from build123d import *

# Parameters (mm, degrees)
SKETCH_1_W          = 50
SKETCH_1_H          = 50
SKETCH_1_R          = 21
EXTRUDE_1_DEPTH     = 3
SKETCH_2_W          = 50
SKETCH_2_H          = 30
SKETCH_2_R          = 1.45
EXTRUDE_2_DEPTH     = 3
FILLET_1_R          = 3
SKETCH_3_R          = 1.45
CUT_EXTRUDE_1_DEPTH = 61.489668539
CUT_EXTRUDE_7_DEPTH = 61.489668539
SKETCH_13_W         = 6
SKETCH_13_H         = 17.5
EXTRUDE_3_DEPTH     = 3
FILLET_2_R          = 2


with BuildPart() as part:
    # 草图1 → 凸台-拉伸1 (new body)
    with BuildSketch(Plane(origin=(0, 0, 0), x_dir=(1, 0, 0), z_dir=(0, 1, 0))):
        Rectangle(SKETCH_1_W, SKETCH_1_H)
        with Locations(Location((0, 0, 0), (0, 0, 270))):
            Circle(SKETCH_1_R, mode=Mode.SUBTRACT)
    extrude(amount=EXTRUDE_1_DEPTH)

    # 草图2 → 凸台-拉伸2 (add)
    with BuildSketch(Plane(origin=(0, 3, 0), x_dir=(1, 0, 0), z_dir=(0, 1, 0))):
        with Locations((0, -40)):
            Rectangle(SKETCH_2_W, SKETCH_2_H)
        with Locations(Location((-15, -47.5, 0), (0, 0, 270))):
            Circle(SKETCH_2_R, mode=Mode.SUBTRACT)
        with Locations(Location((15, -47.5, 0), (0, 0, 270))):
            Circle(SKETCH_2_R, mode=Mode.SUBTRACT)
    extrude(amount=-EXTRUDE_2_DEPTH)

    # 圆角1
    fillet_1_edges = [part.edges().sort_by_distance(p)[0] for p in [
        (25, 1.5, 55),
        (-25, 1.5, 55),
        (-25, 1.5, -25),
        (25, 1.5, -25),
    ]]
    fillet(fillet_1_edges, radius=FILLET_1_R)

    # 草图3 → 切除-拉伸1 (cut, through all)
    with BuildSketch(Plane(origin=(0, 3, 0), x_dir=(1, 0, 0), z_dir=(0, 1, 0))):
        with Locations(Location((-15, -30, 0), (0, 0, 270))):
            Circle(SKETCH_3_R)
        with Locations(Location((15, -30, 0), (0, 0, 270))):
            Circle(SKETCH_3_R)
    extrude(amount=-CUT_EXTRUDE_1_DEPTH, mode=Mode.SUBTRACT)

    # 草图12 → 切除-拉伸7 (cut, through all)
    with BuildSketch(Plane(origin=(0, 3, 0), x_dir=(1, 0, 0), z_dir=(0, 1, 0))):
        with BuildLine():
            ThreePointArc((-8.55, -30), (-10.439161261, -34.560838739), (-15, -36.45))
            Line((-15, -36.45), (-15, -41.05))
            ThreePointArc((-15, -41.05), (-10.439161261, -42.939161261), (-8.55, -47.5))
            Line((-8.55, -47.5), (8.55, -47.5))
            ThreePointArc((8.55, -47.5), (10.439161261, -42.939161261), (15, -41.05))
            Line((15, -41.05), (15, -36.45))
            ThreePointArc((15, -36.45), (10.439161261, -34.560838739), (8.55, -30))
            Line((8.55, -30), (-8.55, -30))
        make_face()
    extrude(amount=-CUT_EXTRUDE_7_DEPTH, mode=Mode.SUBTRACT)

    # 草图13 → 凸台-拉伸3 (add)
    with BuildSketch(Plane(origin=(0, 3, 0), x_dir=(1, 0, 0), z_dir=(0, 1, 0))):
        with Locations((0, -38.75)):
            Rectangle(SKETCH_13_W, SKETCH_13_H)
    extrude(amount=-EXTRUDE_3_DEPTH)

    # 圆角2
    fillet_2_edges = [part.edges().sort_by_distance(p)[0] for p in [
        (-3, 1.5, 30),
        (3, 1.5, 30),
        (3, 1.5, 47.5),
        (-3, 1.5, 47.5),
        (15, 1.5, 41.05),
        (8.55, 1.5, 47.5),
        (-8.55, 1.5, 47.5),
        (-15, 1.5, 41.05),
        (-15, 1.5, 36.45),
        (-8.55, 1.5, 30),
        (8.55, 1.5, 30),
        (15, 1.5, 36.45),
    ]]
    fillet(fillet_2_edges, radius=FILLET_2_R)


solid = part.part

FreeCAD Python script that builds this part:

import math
import FreeCAD as App
import Part
import Sketcher

V = App.Vector
Q = App.Units.Quantity


def edges_at(feature, points):
    """Names of the edges that pass closest to the given points."""
    edges = feature.Shape.Edges
    near = lambda p: min(range(len(edges)), key=lambda i: edges[i].distToShape(Part.Vertex(*p))[0])
    return sorted({f"Edge{near(p) + 1}" for p in points})

doc = App.newDocument("Part")
body = doc.addObject("PartDesign::Body", "Body")

# Sketch on XZ plane
sketch1 = body.newObject("Sketcher::SketchObject", "Sketch")
sketch1.AttachmentSupport = (doc.getObject("XZ_Plane"), [""])
sketch1.MapMode = "FlatFace"
sketch1.addGeometry(Part.LineSegment(V(-25, -25, 0), V(-25, 25, 0)), False)
sketch1.addGeometry(Part.LineSegment(V(-25, 25, 0), V(25, 25, 0)), False)
sketch1.addGeometry(Part.LineSegment(V(25, 25, 0), V(25, -25, 0)), False)
sketch1.addGeometry(Part.LineSegment(V(25, -25, 0), V(-25, -25, 0)), False)
sketch1.addGeometry(Part.Circle(V(0, 0, 0), V(0, 0, 1), 21), False)
sketch1.addConstraint(Sketcher.Constraint("Coincident", 0, 2, 1, 1))
sketch1.addConstraint(Sketcher.Constraint("Coincident", 1, 2, 2, 1))
sketch1.addConstraint(Sketcher.Constraint("Coincident", 2, 2, 3, 1))
sketch1.addConstraint(Sketcher.Constraint("Coincident", 3, 2, 0, 1))
sketch1.addConstraint(Sketcher.Constraint("Vertical", 0))
sketch1.addConstraint(Sketcher.Constraint("Horizontal", 1))
sketch1.addConstraint(Sketcher.Constraint("Vertical", 2))
sketch1.addConstraint(Sketcher.Constraint("Horizontal", 3))
sketch1.addConstraint(Sketcher.Constraint("Coincident", 4, 3, -1, 1))
sketch1.addConstraint(Sketcher.Constraint("Symmetric", 0, 2, 2, 2, -1, 1))
sketch1.addConstraint(Sketcher.Constraint("Equal", 3, 0))
sketch1.addConstraint(Sketcher.Constraint("Diameter", 4, Q("42 mm")))
sketch1.addConstraint(Sketcher.Constraint("DistanceX", 1, 1, 1, 2, Q("50 mm")))
pad1 = body.newObject("PartDesign::Pad", "Pad")
pad1.Profile = sketch1
pad1.Length = 3
pad1.Reversed = True

# Sketch on XZ plane
sketch2 = body.newObject("Sketcher::SketchObject", "Sketch001")
sketch2.AttachmentSupport = (doc.getObject("XZ_Plane"), [""])
sketch2.MapMode = "FlatFace"
sketch2.AttachmentOffset = App.Placement(V(0, 0, -3), App.Rotation())
sketch2.addGeometry(Part.LineSegment(V(-25, 25, 0), V(-25, 55, 0)), False)
sketch2.addGeometry(Part.LineSegment(V(-25, 55, 0), V(25, 55, 0)), False)
sketch2.addGeometry(Part.LineSegment(V(25, 55, 0), V(25, 25, 0)), False)
sketch2.addGeometry(Part.LineSegment(V(25, 25, 0), V(-25, 25, 0)), False)
sketch2.addGeometry(Part.Circle(V(-15, 47.5, 0), V(0, 0, 1), 1.45), False)
sketch2.addGeometry(Part.Circle(V(15, 47.5, 0), V(0, 0, 1), 1.45), False)
sketch2.addConstraint(Sketcher.Constraint("Coincident", 0, 2, 1, 1))
sketch2.addConstraint(Sketcher.Constraint("Coincident", 1, 2, 2, 1))
sketch2.addConstraint(Sketcher.Constraint("Coincident", 2, 2, 3, 1))
sketch2.addConstraint(Sketcher.Constraint("Coincident", 3, 2, 0, 1))
sketch2.addConstraint(Sketcher.Constraint("Vertical", 0))
sketch2.addConstraint(Sketcher.Constraint("Horizontal", 1))
sketch2.addConstraint(Sketcher.Constraint("Vertical", 2))
sketch2.addConstraint(Sketcher.Constraint("Horizontal", 3))
sketch2.addConstraint(Sketcher.Constraint("Equal", 4, 5))
sketch2.addConstraint(Sketcher.Constraint("Symmetric", 4, 3, 5, 3, -2))
sketch2.addConstraint(Sketcher.Constraint("Diameter", 4, Q("2.9 mm")))
sketch2.addConstraint(Sketcher.Constraint("DistanceX", 1, 1, 1, 2, Q("50 mm")))
sketch2.addConstraint(Sketcher.Constraint("DistanceY", 0, 1, 0, 2, Q("30 mm")))
sketch2.addConstraint(Sketcher.Constraint("DistanceX", 4, 3, -1, 1, Q("15 mm")))
sketch2.addConstraint(Sketcher.Constraint("DistanceX", 0, 2, -1, 1, Q("25 mm")))
sketch2.addConstraint(Sketcher.Constraint("DistanceY", -1, 1, 0, 2, Q("55 mm")))
sketch2.addConstraint(Sketcher.Constraint("DistanceY", -1, 1, 4, 3, Q("47.5 mm")))
pad2 = body.newObject("PartDesign::Pad", "Pad001")
pad2.Profile = sketch2
pad2.Length = 3
doc.recompute()

fillet = body.newObject("PartDesign::Fillet", "Fillet")
fillet.Base = (pad2, edges_at(pad2, [
    (25, 1.5, 55),
    (-25, 1.5, 55),
    (-25, 1.5, -25),
    (25, 1.5, -25),
]))
fillet.Radius = 3

# Sketch on XZ plane
sketch3 = body.newObject("Sketcher::SketchObject", "Sketch002")
sketch3.AttachmentSupport = (doc.getObject("XZ_Plane"), [""])
sketch3.MapMode = "FlatFace"
sketch3.AttachmentOffset = App.Placement(V(0, 0, -3), App.Rotation())
sketch3.addGeometry(Part.Circle(V(-15, 30, 0), V(0, 0, 1), 1.45), False)
sketch3.addGeometry(Part.Circle(V(15, 30, 0), V(0, 0, 1), 1.45), False)
sketch3.addConstraint(Sketcher.Constraint("Equal", 0, 1))
sketch3.addConstraint(Sketcher.Constraint("Symmetric", 0, 3, 1, 3, -2))
sketch3.addConstraint(Sketcher.Constraint("Diameter", 0, Q("2.9 mm")))
sketch3.addConstraint(Sketcher.Constraint("DistanceX", 0, 3, -1, 1, Q("15 mm")))
sketch3.addConstraint(Sketcher.Constraint("DistanceY", -1, 1, 0, 3, Q("30 mm")))
pocket1 = body.newObject("PartDesign::Pocket", "Pocket")
pocket1.Profile = sketch3
pocket1.Type = "ThroughAll"
pocket1.Reversed = True

# Sketch on XZ plane
sketch4 = body.newObject("Sketcher::SketchObject", "Sketch003")
sketch4.AttachmentSupport = (doc.getObject("XZ_Plane"), [""])
sketch4.MapMode = "FlatFace"
sketch4.AttachmentOffset = App.Placement(V(0, 0, -3), App.Rotation())
sketch4.addGeometry(Part.ArcOfCircle(Part.Circle(V(-15, 30, 0), V(0, 0, 1), 6.45), math.radians(0), math.radians(90)), False)
sketch4.addGeometry(Part.LineSegment(V(-15, 36.45, 0), V(-15, 41.05, 0)), False)
sketch4.addGeometry(Part.ArcOfCircle(Part.Circle(V(-15, 47.5, 0), V(0, 0, 1), 6.45), math.radians(-90), math.radians(0)), False)
sketch4.addGeometry(Part.LineSegment(V(-8.55, 47.5, 0), V(8.55, 47.5, 0)), False)
sketch4.addGeometry(Part.ArcOfCircle(Part.Circle(V(15, 47.5, 0), V(0, 0, 1), 6.45), math.radians(180), math.radians(270)), False)
sketch4.addGeometry(Part.LineSegment(V(15, 41.05, 0), V(15, 36.45, 0)), False)
sketch4.addGeometry(Part.ArcOfCircle(Part.Circle(V(15, 30, 0), V(0, 0, 1), 6.45), math.radians(90), math.radians(180)), False)
sketch4.addGeometry(Part.LineSegment(V(8.55, 30, 0), V(-8.55, 30, 0)), False)
sketch4.addConstraint(Sketcher.Constraint("Coincident", 0, 2, 1, 1))
sketch4.addConstraint(Sketcher.Constraint("Coincident", 1, 2, 2, 1))
sketch4.addConstraint(Sketcher.Constraint("Coincident", 2, 2, 3, 1))
sketch4.addConstraint(Sketcher.Constraint("Coincident", 3, 2, 4, 1))
sketch4.addConstraint(Sketcher.Constraint("Coincident", 4, 2, 5, 1))
sketch4.addConstraint(Sketcher.Constraint("Coincident", 5, 2, 6, 1))
sketch4.addConstraint(Sketcher.Constraint("Coincident", 6, 2, 7, 1))
sketch4.addConstraint(Sketcher.Constraint("Coincident", 7, 2, 0, 1))
sketch4.addConstraint(Sketcher.Constraint("Vertical", 1))
sketch4.addConstraint(Sketcher.Constraint("Horizontal", 3))
sketch4.addConstraint(Sketcher.Constraint("Vertical", 5))
sketch4.addConstraint(Sketcher.Constraint("Horizontal", 7))
sketch4.addConstraint(Sketcher.Constraint("Equal", 0, 2))
sketch4.addConstraint(Sketcher.Constraint("Equal", 2, 4))
sketch4.addConstraint(Sketcher.Constraint("Equal", 4, 6))
sketch4.addConstraint(Sketcher.Constraint("Symmetric", 2, 3, 4, 3, -2))
sketch4.addConstraint(Sketcher.Constraint("Symmetric", 0, 3, 6, 3, -2))
sketch4.addConstraint(Sketcher.Constraint("Horizontal", 4, 3, 2, 2))
sketch4.addConstraint(Sketcher.Constraint("Horizontal", 0, 3, 6, 2))
sketch4.addConstraint(Sketcher.Constraint("Vertical", 0, 3, 2, 3))
sketch4.addConstraint(Sketcher.Constraint("Vertical", 2, 3, 0, 2))
sketch4.addConstraint(Sketcher.Constraint("Vertical", 6, 3, 4, 2))
sketch4.addConstraint(Sketcher.Constraint("Radius", 0, Q("6.45 mm")))
sketch4.addConstraint(Sketcher.Constraint("DistanceX", 3, 1, 3, 2, Q("17.1 mm")))
sketch4.addConstraint(Sketcher.Constraint("DistanceY", 1, 1, 1, 2, Q("4.6 mm")))
sketch4.addConstraint(Sketcher.Constraint("DistanceY", -1, 1, 0, 3, Q("30 mm")))
pocket2 = body.newObject("PartDesign::Pocket", "Pocket001")
pocket2.Profile = sketch4
pocket2.Type = "ThroughAll"
pocket2.Reversed = True

# Sketch on XZ plane
sketch5 = body.newObject("Sketcher::SketchObject", "Sketch004")
sketch5.AttachmentSupport = (doc.getObject("XZ_Plane"), [""])
sketch5.MapMode = "FlatFace"
sketch5.AttachmentOffset = App.Placement(V(0, 0, -3), App.Rotation())
sketch5.addGeometry(Part.LineSegment(V(-3, 30, 0), V(-3, 47.5, 0)), False)
sketch5.addGeometry(Part.LineSegment(V(-3, 47.5, 0), V(3, 47.5, 0)), False)
sketch5.addGeometry(Part.LineSegment(V(3, 47.5, 0), V(3, 30, 0)), False)
sketch5.addGeometry(Part.LineSegment(V(3, 30, 0), V(-3, 30, 0)), False)
sketch5.addConstraint(Sketcher.Constraint("Coincident", 0, 2, 1, 1))
sketch5.addConstraint(Sketcher.Constraint("Coincident", 1, 2, 2, 1))
sketch5.addConstraint(Sketcher.Constraint("Coincident", 2, 2, 3, 1))
sketch5.addConstraint(Sketcher.Constraint("Coincident", 3, 2, 0, 1))
sketch5.addConstraint(Sketcher.Constraint("Vertical", 0))
sketch5.addConstraint(Sketcher.Constraint("Horizontal", 1))
sketch5.addConstraint(Sketcher.Constraint("Vertical", 2))
sketch5.addConstraint(Sketcher.Constraint("Horizontal", 3))
sketch5.addConstraint(Sketcher.Constraint("DistanceX", 1, 1, 1, 2, Q("6 mm")))
sketch5.addConstraint(Sketcher.Constraint("DistanceY", 0, 1, 0, 2, Q("17.5 mm")))
sketch5.addConstraint(Sketcher.Constraint("DistanceX", 0, 2, -1, 1, Q("3 mm")))
sketch5.addConstraint(Sketcher.Constraint("DistanceY", -1, 1, 2, 2, Q("30 mm")))
pad3 = body.newObject("PartDesign::Pad", "Pad002")
pad3.Profile = sketch5
pad3.Length = 3
doc.recompute()

fillet2 = body.newObject("PartDesign::Fillet", "Fillet001")
fillet2.Base = (pad3, edges_at(pad3, [
    (-3, 1.5, 30),
    (3, 1.5, 30),
    (3, 1.5, 47.5),
    (-3, 1.5, 47.5),
    (15, 1.5, 41.05),
    (8.55, 1.5, 47.5),
    (-8.55, 1.5, 47.5),
    (-15, 1.5, 41.05),
    (-15, 1.5, 36.45),
    (-8.55, 1.5, 30),
    (8.55, 1.5, 30),
    (15, 1.5, 36.45),
]))
fillet2.Radius = 2

doc.recompute()
